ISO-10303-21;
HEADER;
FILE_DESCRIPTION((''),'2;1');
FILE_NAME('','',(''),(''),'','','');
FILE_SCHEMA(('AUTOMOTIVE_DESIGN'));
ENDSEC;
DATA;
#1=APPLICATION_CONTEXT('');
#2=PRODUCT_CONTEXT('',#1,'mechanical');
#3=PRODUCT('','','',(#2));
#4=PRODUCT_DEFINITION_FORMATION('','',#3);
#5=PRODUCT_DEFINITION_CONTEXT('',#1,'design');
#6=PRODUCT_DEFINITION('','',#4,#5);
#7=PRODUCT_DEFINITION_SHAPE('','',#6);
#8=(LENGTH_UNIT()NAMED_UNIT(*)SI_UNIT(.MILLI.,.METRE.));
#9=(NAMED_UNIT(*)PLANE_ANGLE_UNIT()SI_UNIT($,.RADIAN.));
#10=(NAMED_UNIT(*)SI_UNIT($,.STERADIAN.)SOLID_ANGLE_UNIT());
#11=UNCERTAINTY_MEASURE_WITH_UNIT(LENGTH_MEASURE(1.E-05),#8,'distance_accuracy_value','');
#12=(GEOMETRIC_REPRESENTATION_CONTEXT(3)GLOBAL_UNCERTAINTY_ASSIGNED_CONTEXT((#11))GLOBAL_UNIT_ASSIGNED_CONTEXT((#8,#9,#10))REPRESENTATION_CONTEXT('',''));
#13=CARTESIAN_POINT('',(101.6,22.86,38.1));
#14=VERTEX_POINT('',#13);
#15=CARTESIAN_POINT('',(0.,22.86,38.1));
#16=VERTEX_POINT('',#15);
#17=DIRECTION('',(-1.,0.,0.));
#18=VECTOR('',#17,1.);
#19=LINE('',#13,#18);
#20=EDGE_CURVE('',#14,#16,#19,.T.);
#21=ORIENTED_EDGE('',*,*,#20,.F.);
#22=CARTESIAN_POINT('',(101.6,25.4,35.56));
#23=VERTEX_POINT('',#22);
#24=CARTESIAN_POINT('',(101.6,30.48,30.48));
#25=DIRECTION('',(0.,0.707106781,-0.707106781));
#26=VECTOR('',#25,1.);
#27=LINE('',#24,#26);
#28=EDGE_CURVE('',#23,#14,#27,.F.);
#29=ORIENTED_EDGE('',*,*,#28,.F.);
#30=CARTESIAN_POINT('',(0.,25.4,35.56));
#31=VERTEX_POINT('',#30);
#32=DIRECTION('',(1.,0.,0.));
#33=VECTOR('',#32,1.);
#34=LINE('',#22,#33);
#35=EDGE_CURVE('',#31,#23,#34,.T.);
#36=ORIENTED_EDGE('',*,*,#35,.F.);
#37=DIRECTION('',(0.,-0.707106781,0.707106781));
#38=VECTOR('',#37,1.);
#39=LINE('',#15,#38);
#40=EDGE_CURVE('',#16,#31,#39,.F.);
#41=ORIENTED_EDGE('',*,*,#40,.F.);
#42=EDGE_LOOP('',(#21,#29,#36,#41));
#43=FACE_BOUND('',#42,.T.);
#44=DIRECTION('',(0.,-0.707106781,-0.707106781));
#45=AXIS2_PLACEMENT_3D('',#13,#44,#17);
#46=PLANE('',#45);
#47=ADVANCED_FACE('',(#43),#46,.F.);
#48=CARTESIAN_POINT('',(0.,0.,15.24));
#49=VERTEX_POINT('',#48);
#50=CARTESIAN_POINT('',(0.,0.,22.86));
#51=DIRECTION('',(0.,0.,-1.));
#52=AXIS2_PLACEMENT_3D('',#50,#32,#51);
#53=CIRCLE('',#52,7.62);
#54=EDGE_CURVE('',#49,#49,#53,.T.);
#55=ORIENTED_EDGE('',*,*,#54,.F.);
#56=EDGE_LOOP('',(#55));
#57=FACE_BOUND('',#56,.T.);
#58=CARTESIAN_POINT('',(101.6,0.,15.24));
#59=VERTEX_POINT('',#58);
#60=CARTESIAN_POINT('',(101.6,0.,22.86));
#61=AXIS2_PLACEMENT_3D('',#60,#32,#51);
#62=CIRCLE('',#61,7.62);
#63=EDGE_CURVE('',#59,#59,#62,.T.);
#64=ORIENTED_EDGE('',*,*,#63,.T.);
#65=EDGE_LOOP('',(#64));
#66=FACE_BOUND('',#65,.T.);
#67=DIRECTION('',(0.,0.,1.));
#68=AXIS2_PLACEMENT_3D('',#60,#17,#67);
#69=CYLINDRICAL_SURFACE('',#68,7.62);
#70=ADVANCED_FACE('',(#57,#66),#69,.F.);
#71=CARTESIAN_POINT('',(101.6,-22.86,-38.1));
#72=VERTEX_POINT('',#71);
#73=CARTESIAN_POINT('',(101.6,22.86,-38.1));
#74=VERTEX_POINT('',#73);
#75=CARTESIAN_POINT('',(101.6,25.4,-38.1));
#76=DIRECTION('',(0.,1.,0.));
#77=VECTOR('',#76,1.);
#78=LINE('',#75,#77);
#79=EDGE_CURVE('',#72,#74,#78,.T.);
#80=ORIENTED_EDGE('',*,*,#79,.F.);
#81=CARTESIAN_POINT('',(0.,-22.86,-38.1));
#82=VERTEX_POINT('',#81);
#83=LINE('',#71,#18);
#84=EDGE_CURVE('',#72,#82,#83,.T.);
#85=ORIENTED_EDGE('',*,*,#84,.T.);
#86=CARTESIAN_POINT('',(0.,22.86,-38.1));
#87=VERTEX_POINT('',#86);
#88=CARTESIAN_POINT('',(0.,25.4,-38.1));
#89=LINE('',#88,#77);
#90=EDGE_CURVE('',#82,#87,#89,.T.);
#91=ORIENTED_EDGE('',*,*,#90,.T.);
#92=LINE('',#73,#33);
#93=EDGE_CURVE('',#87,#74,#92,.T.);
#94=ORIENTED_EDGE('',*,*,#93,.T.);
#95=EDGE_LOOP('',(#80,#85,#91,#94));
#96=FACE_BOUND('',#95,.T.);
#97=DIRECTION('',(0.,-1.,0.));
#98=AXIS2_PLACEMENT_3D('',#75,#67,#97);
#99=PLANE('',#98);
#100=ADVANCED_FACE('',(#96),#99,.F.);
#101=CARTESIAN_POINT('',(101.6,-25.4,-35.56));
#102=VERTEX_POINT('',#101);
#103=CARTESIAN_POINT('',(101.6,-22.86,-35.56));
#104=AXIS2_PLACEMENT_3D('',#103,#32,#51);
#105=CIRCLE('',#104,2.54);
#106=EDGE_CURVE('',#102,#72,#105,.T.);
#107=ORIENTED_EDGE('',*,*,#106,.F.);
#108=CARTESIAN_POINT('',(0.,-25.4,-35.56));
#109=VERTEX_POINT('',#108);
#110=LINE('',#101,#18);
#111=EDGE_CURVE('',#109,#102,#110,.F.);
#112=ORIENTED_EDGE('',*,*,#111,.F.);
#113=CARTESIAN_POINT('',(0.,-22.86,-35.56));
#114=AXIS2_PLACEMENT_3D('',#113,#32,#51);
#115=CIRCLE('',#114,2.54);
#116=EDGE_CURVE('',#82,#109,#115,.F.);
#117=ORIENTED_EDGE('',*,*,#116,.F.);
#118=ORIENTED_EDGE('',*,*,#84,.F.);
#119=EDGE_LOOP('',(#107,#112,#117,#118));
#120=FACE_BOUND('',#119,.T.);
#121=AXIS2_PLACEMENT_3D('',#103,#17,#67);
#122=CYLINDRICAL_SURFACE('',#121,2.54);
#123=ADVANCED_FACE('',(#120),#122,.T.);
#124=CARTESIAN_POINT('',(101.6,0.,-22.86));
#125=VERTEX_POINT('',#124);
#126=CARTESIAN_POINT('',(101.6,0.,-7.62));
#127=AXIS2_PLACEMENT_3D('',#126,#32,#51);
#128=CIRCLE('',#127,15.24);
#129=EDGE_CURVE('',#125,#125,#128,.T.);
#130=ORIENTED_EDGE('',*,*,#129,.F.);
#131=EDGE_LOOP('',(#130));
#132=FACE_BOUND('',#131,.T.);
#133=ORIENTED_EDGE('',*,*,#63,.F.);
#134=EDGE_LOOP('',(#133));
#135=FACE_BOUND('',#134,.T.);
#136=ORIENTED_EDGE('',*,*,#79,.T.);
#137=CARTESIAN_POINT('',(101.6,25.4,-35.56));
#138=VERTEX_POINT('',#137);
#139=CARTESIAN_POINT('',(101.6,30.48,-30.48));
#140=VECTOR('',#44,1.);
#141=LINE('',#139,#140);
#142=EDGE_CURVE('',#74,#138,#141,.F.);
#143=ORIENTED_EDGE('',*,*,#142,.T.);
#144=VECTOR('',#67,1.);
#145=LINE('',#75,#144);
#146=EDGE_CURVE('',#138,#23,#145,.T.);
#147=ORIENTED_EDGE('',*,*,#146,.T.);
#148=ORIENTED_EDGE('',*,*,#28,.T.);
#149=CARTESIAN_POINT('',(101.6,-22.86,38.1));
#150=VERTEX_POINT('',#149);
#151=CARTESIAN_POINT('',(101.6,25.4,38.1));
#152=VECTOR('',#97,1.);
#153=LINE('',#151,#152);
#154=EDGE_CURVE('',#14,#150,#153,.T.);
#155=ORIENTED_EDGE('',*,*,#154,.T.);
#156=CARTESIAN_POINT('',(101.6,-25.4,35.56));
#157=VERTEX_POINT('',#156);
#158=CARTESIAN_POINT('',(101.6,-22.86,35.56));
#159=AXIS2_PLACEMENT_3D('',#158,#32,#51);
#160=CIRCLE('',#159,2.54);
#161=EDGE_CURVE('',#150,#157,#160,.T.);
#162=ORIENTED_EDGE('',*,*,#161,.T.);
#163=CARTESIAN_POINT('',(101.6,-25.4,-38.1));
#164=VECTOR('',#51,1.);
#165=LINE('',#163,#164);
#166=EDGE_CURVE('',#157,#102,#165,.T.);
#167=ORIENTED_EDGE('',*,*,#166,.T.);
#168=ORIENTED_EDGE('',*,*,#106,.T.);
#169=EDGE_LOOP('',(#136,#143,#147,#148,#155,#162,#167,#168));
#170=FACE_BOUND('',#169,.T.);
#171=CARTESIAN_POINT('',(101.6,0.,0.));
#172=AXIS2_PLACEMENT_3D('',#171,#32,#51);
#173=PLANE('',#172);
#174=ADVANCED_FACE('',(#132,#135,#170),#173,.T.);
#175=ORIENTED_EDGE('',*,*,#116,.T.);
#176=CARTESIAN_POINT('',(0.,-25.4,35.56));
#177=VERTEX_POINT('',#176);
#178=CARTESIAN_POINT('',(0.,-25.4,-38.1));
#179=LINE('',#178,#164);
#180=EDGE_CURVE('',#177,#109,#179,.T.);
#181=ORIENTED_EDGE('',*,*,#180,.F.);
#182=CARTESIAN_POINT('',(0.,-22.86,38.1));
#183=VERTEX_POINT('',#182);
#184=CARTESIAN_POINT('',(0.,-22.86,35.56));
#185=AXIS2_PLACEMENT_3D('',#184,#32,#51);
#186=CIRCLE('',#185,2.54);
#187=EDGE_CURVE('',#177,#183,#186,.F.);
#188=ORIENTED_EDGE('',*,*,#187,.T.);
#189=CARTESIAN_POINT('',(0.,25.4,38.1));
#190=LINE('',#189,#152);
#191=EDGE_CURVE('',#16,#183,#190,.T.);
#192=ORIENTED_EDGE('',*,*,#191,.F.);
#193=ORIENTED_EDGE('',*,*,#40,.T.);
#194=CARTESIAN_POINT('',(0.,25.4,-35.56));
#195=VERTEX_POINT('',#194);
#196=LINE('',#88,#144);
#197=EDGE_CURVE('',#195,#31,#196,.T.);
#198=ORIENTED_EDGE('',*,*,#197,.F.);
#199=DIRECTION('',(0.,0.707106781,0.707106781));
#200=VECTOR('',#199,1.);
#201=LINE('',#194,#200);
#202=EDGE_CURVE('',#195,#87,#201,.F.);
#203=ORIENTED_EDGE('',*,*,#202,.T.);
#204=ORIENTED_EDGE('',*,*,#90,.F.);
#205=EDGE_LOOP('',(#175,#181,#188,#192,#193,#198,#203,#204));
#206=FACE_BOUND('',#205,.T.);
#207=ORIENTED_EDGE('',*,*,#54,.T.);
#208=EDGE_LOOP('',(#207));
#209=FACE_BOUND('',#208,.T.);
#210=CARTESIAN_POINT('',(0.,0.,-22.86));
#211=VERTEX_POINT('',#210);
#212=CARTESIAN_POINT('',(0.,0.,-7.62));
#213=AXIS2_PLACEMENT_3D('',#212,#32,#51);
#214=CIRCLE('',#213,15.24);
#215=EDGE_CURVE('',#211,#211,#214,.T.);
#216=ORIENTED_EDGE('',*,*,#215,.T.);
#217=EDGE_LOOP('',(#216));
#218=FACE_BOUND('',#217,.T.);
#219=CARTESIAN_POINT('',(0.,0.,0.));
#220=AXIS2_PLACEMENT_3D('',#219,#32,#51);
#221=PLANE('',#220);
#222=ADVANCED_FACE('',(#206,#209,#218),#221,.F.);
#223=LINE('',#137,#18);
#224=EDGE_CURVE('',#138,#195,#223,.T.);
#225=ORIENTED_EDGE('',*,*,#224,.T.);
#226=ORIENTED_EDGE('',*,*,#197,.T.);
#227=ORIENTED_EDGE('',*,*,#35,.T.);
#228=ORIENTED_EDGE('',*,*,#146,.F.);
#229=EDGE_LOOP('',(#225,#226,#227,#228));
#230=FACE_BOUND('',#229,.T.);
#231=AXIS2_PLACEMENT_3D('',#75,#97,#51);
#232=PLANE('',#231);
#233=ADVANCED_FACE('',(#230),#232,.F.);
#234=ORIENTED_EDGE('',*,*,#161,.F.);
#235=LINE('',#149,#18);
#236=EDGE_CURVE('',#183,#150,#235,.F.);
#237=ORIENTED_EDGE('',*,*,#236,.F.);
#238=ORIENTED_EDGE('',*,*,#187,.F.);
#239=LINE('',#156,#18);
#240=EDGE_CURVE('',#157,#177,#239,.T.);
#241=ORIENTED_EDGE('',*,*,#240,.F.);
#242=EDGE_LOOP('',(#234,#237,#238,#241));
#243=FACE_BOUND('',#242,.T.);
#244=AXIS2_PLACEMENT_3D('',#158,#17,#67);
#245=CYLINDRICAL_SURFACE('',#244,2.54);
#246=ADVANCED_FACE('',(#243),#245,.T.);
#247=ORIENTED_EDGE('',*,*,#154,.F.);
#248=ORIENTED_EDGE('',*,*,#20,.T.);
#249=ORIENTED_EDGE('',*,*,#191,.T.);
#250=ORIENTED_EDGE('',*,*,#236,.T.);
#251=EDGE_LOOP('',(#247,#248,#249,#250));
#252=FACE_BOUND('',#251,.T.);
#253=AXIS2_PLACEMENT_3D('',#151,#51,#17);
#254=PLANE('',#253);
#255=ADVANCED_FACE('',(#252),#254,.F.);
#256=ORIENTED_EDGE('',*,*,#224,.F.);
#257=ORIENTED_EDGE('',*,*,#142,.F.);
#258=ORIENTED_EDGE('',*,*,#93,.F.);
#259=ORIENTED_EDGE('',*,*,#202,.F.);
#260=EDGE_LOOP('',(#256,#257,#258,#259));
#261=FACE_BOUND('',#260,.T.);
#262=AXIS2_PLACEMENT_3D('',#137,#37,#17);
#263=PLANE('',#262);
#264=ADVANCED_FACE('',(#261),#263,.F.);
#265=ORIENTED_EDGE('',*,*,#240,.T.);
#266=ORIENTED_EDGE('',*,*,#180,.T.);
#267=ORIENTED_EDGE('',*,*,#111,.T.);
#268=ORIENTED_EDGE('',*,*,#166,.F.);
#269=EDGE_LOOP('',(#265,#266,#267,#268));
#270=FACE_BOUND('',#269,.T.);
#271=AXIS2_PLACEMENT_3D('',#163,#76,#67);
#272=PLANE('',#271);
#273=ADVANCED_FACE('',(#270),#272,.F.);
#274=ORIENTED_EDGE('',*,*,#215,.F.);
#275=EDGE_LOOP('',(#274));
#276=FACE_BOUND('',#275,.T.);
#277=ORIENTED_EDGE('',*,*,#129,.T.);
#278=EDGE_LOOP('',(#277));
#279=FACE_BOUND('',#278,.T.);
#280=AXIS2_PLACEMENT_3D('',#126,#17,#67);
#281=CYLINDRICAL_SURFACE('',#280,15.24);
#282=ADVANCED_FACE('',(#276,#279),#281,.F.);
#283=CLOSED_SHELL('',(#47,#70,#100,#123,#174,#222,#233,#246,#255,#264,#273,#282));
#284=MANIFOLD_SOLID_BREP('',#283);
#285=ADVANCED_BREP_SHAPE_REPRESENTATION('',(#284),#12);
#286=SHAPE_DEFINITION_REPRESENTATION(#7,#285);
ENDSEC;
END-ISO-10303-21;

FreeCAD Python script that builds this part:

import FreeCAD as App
import Part
import Sketcher
from FreeCAD import Vector
Q = App.Units.Quantity


def edges_at(feature, points):
    """Names of the edges that pass closest to the given points."""
    edges = feature.Shape.Edges
    near = lambda p: min(range(len(edges)), key=lambda i: edges[i].distToShape(Part.Vertex(*p))[0])
    return sorted({f"Edge{near(p) + 1}" for p in points})


def add_polygon(sketch, points):
    """Adds a closed chain of lines whose ends are joined by coincident constraints."""
    first, n = sketch.GeometryCount, len(points)
    for a, b in zip(points, points[1:] + points[:1]):
        sketch.addGeometry(Part.LineSegment(App.Vector(*a, 0), App.Vector(*b, 0)), False)
    for i in range(n):
        sketch.addConstraint(Sketcher.Constraint("Coincident", first + i, 2, first + (i + 1) % n, 1))

doc = App.newDocument("Part")
body = doc.addObject("PartDesign::Body", "Body")

# Sketch on YZ plane
sketch1 = doc.addObject("Sketcher::SketchObject", "Sketch")
body.addObject(sketch1)
sketch1.AttachmentSupport = (doc.YZ_Plane, [""])
sketch1.MapMode = "FlatFace"
add_polygon(sketch1, [(-25, 38), (-25, -38), (25, -38), (25, 38)])  # lines 0-3
sketch1.addGeometry(Part.Circle(Vector(0, -8, 0), Vector(0, 0, 1), 15), False)  # 4
sketch1.addGeometry(Part.Circle(Vector(0, 23, 0), Vector(0, 0, 1), 8), False)  # 5
sketch1.addConstraint([
    Sketcher.Constraint("Vertical", 0),
    Sketcher.Constraint("Horizontal", 1),
    Sketcher.Constraint("Vertical", 2),
    Sketcher.Constraint("Horizontal", 3),
    Sketcher.Constraint("Symmetric", 0, 2, 2, 2, -1, 1),
    Sketcher.Constraint("PointOnObject", 4, 3, -2),
    Sketcher.Constraint("PointOnObject", 5, 3, -2),
    Sketcher.Constraint("Diameter", 4, Q("1.2 in")),
    Sketcher.Constraint("Diameter", 5, Q("0.6 in")),
    Sketcher.Constraint("DistanceX", 1, 1, 1, 2, Q("2 in")),
    Sketcher.Constraint("DistanceY", 0, 2, 0, 1, Q("3 in")),
    Sketcher.Constraint("DistanceY", 4, 3, -1, 1, Q("0.3 in")),
    Sketcher.Constraint("DistanceY", -1, 1, 5, 3, Q("0.9 in")),
])
pad1 = doc.addObject("PartDesign::Pad", "Pad")
body.addObject(pad1)
pad1.Profile = sketch1
pad1.Length = Q("4 in")
doc.recompute()

fillet = doc.addObject("PartDesign::Fillet", "Fillet")
body.addObject(fillet)
fillet.Base = (pad1, edges_at(pad1, [(50.8, -25.4, 38.1), (50.8, -25.4, -38.1)]))
fillet.Radius = Q("0.1 in")
doc.recompute()

chamfer = doc.addObject("PartDesign::Chamfer", "Chamfer")
body.addObject(chamfer)
chamfer.Base = (fillet, edges_at(fillet, [(50.8, 25.4, 38.1), (50.8, 25.4, -38.1)]))
chamfer.Size = Q("0.1 in")

doc.recompute()
